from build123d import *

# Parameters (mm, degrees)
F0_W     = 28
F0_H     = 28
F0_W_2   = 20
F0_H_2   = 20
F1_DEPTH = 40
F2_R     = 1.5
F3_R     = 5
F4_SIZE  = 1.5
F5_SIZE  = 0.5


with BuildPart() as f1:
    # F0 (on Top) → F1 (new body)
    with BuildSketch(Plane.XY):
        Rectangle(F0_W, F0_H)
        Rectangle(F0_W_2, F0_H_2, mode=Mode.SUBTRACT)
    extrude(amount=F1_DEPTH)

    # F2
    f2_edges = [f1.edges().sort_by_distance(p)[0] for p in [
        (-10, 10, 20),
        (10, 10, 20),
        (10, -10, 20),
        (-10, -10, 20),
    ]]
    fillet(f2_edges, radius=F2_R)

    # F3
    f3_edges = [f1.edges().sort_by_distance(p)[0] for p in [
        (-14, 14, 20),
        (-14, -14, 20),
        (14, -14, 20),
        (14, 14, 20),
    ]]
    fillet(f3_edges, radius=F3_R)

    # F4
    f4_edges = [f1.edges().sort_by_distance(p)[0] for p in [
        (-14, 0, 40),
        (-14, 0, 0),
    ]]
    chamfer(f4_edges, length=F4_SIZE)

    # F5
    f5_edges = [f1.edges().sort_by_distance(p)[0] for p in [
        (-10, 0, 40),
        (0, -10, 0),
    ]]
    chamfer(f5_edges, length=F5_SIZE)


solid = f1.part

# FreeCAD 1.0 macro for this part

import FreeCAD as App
import Part
import Sketcher
Q = App.Units.Quantity


def edges_at(feature, points):
    """Names of the edges that pass closest to the given points."""
    edges = feature.Shape.Edges
    near = lambda p: min(range(len(edges)), key=lambda i: edges[i].distToShape(Part.Vertex(*p))[0])
    return sorted({f"Edge{near(p) + 1}" for p in points})


def add_polygon(sketch, points):
    """Adds a closed chain of lines whose ends are joined by coincident constraints."""
    first, n = sketch.GeometryCount, len(points)
    for a, b in zip(points, points[1:] + points[:1]):
        sketch.addGeometry(Part.LineSegment(App.Vector(*a, 0), App.Vector(*b, 0)), False)
    for i in range(n):
        sketch.addConstraint(Sketcher.Constraint("Coincident", first + i, 2, first + (i + 1) % n, 1))

doc = App.newDocument("Part")
params = doc.addObject("Spreadsheet::Sheet", "Params")
for row, (alias, value) in enumerate([
    ("sketch1_width", "28 mm"),
    ("sketch1_width2", "20 mm"),
    ("pad1_length", "40 mm"),
    ("fillet_radius", "1.5 mm"),
    ("fillet2_radius", "5 mm"),
    ("chamfer_size", "1.5 mm"),
    ("chamfer2_size", "0.5 mm"),
], start=1):
    params.set(f"A{row}", alias)
    params.set(f"B{row}", "=" + value)
    params.setAlias(f"B{row}", alias)

body = doc.addObject("PartDesign::Body", "Body")

# Sketch on XY plane
sketch1 = body.newObject("Sketcher::SketchObject", "Sketch")
sketch1.AttachmentSupport = (doc.getObject("XY_Plane"), [""])
sketch1.MapMode = "FlatFace"
add_polygon(sketch1, [(-14, 14), (-14, -14), (14, -14), (14, 14)])  # lines 0-3
add_polygon(sketch1, [(10, -10), (-10, -10), (-10, 10), (10, 10)])  # lines 4-7
sketch1.addConstraint(Sketcher.Constraint("Vertical", 0))
sketch1.addConstraint(Sketcher.Constraint("Horizontal", 1))
sketch1.addConstraint(Sketcher.Constraint("Vertical", 2))
sketch1.addConstraint(Sketcher.Constraint("Horizontal", 3))
sketch1.addConstraint(Sketcher.Constraint("Horizontal", 4))
sketch1.addConstraint(Sketcher.Constraint("Vertical", 5))
sketch1.addConstraint(Sketcher.Constraint("Horizontal", 6))
sketch1.addConstraint(Sketcher.Constraint("Vertical", 7))
sketch1.addConstraint(Sketcher.Constraint("Symmetric", 0, 2, 2, 2, -1, 1))
sketch1.addConstraint(Sketcher.Constraint("Symmetric", 4, 2, 6, 2, -1, 1))
sketch1.addConstraint(Sketcher.Constraint("Equal", 3, 0))
sketch1.addConstraint(Sketcher.Constraint("Equal", 6, 5))
sketch1.addConstraint(Sketcher.Constraint("DistanceX", 1, 1, 1, 2, Q("28 mm")))
sketch1.addConstraint(Sketcher.Constraint("DistanceX", 4, 2, 4, 1, Q("20 mm")))
sketch1.setExpression("Constraints[20]", "Params.sketch1_width")
sketch1.setExpression("Constraints[21]", "Params.sketch1_width2")
pad1 = body.newObject("PartDesign::Pad", "Pad")
pad1.Profile = sketch1
pad1.setExpression("Length", "Params.pad1_length")
doc.recompute()

fillet = body.newObject("PartDesign::Fillet", "Fillet")
fillet.Base = (pad1, edges_at(pad1, [
    (-10, 10, 20),
    (10, 10, 20),
    (10, -10, 20),
    (-10, -10, 20),
]))
fillet.setExpression("Radius", "Params.fillet_radius")
doc.recompute()

fillet2 = body.newObject("PartDesign::Fillet", "Fillet001")
fillet2.Base = (fillet, edges_at(fillet, [
    (-14, 14, 20),
    (-14, -14, 20),
    (14, -14, 20),
    (14, 14, 20),
]))
fillet2.setExpression("Radius", "Params.fillet2_radius")
doc.recompute()

chamfer = body.newObject("PartDesign::Chamfer", "Chamfer")
chamfer.Base = (fillet2, edges_at(fillet2, [(-14, 0, 40), (-14, 0, 0)]))
chamfer.setExpression("Size", "Params.chamfer_size")
doc.recompute()

chamfer2 = body.newObject("PartDesign::Chamfer", "Chamfer001")
chamfer2.Base = (chamfer, edges_at(chamfer, [(-10, 0, 40), (0, -10, 0)]))
chamfer2.setExpression("Size", "Params.chamfer2_size")

doc.recompute()
